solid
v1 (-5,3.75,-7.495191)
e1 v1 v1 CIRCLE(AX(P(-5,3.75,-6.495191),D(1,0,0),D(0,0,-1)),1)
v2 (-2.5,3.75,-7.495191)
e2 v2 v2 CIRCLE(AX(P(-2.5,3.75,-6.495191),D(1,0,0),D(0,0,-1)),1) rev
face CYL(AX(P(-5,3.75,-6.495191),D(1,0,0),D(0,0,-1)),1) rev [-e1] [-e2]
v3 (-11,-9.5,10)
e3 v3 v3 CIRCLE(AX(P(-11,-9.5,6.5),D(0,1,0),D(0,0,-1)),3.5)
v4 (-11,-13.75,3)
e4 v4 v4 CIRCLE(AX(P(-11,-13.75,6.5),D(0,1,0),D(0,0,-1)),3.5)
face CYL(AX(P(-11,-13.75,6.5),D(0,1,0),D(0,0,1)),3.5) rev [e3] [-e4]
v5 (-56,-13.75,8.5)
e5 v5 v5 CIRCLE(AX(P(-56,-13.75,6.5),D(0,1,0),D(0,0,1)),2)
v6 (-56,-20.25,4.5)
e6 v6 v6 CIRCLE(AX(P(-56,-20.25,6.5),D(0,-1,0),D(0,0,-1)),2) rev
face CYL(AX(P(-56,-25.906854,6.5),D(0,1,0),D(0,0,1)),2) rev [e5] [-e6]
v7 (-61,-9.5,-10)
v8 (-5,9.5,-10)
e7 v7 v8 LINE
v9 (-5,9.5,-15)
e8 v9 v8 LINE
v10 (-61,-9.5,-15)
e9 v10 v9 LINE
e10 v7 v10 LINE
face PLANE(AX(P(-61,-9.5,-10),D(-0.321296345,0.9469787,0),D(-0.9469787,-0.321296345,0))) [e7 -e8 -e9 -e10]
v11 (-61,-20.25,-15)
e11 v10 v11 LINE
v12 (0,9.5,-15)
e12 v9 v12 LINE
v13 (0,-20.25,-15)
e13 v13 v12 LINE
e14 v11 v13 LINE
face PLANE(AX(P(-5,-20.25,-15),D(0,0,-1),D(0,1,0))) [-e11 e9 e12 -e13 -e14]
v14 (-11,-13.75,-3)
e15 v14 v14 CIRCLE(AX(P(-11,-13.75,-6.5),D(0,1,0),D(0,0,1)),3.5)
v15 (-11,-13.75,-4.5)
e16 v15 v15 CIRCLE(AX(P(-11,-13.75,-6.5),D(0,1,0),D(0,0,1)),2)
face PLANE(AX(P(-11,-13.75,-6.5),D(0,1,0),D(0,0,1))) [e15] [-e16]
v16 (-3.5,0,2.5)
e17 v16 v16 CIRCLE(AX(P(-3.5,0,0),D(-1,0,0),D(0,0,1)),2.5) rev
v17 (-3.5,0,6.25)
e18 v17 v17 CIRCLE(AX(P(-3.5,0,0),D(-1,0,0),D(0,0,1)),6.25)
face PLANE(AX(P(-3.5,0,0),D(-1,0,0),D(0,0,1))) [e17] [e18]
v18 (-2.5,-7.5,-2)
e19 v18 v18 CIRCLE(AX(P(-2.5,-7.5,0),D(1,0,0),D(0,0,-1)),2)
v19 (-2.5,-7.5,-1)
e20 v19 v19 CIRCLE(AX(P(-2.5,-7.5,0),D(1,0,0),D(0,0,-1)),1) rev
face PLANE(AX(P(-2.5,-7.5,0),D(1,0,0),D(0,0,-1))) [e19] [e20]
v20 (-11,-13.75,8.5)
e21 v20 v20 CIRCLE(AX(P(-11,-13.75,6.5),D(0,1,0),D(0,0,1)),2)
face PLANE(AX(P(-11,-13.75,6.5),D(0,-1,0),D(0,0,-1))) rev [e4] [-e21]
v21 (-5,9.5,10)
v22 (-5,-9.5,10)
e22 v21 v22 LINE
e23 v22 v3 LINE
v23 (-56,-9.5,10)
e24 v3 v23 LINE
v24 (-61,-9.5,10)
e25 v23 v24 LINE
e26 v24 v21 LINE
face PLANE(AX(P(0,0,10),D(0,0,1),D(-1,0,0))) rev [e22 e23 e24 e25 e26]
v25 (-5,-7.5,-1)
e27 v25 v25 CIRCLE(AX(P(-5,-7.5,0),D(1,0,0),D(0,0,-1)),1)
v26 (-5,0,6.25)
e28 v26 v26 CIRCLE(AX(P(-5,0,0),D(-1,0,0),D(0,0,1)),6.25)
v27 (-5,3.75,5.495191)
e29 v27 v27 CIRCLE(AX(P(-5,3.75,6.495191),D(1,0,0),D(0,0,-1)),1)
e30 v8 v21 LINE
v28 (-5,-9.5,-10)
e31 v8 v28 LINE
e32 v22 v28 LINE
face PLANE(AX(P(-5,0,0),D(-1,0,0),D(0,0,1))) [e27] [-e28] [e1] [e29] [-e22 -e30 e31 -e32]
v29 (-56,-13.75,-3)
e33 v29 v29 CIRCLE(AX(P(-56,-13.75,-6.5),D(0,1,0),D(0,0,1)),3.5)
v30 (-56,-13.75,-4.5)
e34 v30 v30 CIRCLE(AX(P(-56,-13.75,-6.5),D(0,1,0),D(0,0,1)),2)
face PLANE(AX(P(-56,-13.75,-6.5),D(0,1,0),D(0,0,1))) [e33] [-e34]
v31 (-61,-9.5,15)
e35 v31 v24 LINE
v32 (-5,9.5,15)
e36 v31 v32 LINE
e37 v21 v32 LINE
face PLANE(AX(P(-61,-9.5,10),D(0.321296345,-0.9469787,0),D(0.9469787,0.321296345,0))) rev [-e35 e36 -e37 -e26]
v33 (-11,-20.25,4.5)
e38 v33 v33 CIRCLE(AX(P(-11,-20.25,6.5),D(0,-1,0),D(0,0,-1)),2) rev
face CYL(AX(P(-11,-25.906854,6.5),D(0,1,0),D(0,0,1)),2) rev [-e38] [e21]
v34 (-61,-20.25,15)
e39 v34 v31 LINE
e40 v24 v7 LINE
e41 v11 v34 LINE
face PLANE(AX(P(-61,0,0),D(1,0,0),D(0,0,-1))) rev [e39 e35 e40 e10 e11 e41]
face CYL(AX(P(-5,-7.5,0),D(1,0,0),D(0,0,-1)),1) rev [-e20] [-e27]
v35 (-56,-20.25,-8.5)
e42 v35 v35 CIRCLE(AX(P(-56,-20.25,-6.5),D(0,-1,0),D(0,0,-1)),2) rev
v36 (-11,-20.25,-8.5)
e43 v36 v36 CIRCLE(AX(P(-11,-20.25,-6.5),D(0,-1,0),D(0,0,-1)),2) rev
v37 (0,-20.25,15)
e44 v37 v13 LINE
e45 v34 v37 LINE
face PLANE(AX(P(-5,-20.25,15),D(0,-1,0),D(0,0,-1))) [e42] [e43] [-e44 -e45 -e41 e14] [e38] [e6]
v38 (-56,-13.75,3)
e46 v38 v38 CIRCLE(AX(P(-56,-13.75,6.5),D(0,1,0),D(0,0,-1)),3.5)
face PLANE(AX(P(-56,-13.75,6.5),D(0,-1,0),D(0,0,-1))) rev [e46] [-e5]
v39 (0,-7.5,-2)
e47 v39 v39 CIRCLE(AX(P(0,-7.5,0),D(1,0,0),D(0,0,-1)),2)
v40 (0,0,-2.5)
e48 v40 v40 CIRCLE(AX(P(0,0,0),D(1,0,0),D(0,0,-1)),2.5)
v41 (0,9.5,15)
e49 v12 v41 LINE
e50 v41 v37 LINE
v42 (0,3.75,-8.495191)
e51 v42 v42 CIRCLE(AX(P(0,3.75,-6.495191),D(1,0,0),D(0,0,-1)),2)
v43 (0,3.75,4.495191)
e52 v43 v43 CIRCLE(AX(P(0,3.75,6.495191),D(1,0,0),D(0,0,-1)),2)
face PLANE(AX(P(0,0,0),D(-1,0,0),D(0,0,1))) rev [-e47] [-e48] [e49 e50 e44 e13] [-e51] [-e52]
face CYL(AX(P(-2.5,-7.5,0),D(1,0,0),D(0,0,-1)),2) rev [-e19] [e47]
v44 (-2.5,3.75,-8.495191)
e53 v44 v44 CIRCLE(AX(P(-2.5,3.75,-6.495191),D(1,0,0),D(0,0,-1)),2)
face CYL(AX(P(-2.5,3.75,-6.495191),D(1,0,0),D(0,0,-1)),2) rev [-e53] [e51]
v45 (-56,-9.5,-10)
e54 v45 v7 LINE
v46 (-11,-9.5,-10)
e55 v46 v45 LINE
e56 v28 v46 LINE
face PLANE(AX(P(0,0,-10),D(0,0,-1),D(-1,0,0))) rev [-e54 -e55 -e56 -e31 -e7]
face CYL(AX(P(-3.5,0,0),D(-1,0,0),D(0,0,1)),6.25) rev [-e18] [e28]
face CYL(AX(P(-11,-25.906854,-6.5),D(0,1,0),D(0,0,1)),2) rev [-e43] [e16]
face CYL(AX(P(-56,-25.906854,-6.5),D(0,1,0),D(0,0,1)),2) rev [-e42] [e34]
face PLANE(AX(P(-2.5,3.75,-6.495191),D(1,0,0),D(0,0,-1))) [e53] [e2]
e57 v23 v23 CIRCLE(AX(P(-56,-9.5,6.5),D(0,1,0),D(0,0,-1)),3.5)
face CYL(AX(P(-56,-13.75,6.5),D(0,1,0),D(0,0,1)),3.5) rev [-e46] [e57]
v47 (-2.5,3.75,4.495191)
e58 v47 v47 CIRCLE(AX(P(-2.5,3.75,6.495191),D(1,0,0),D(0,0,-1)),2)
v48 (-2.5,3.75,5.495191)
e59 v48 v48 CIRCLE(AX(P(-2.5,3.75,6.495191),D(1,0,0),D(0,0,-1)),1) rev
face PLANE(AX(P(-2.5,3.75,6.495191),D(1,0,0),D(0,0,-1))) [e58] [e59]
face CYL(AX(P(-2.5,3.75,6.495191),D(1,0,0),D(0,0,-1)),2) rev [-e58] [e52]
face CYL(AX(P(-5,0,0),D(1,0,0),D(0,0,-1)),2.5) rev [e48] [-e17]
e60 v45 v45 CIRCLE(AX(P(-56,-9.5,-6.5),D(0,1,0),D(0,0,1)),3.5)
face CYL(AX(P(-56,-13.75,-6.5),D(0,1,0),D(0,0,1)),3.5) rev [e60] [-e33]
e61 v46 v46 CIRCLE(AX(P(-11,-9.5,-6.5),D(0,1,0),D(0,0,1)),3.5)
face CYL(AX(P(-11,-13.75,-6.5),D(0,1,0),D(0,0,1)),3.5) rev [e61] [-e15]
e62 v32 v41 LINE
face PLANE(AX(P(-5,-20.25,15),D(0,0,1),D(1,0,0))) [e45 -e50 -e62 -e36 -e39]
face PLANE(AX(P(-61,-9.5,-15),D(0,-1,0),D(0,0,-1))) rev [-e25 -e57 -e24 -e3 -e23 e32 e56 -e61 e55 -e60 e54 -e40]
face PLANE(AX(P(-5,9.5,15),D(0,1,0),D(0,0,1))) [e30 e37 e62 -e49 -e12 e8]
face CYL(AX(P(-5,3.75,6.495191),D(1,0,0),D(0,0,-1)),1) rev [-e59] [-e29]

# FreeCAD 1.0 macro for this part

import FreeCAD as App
import Part
import Sketcher
from FreeCAD import Vector


def add_polygon(sketch, points):
    """Adds a closed chain of lines whose ends are joined by coincident constraints."""
    first, n = sketch.GeometryCount, len(points)
    for a, b in zip(points, points[1:] + points[:1]):
        sketch.addGeometry(Part.LineSegment(App.Vector(*a, 0), App.Vector(*b, 0)), False)
    for i in range(n):
        sketch.addConstraint(Sketcher.Constraint("Coincident", first + i, 2, first + (i + 1) % n, 1))

doc = App.newDocument("Part")
params = doc.addObject("Spreadsheet::Sheet", "Params")
for row, (alias, value) in enumerate([
    ("sketch1_diameter", "2 mm"),
    ("sketch1_diameter2", "5 mm"),
    ("sketch1_height", "30 mm"),
    ("sketch1_width", "29.75 mm"),
    ("pad1_length", "5 mm"),
    ("sketch2_diameter", "4 mm"),
    ("pocket1_length", "2.5 mm"),
    ("sketch3_height", "30 mm"),
    ("sketch3_width", "10.75 mm"),
    ("pad2_length", "56 mm"),
    ("sketch4_width", "56 mm"),
    ("sketch4_height", "19 mm"),
    ("pad3_length", "5 mm"),
    ("sketch5_diameter", "12.5 mm"),
    ("pocket2_length", "1.5 mm"),
    ("sketch6_diameter", "7 mm"),
    ("pocket3_length", "4.25 mm"),
    ("sketch7_diameter", "4 mm"),
    ("pocket4_length", "6.5 mm"),
], start=1):
    params.set(f"A{row}", alias)
    params.set(f"B{row}", "=" + value)
    params.setAlias(f"B{row}", alias)

body = doc.addObject("PartDesign::Body", "Body")

# Sketch on YZ plane
sketch1 = doc.addObject("Sketcher::SketchObject", "Sketch")
body.addObject(sketch1)
sketch1.AttachmentSupport = (doc.YZ_Plane, [""])
sketch1.MapMode = "FlatFace"
add_polygon(sketch1, [(9.5, 15), (-20.2, 15), (-20.2, -15), (9.5, -15)])  # lines 0-3
sketch1.addGeometry(Part.Circle(Vector(-7.5, 0, 0), Vector(0, 0, 1), 1), False)  # 4
sketch1.addGeometry(Part.Circle(Vector(3.8, 6.5, 0), Vector(0, 0, 1), 1), False)  # 5
sketch1.addGeometry(Part.Circle(Vector(0, 0, 0), Vector(0, 0, 1), 2.5), False)  # 6
sketch1.addGeometry(Part.Circle(Vector(3.8, -6.5, 0), Vector(0, 0, 1), 1), False)  # 7
sketch1.addConstraint([
    Sketcher.Constraint("Horizontal", 0),
    Sketcher.Constraint("Vertical", 1),
    Sketcher.Constraint("Horizontal", 2),
    Sketcher.Constraint("Vertical", 3),
    Sketcher.Constraint("Coincident", 6, 3, -1, 1),
    Sketcher.Constraint("Equal", 4, 5),
    Sketcher.Constraint("Equal", 5, 7),
    Sketcher.Constraint("Symmetric", 5, 3, 7, 3, -1),
    Sketcher.Constraint("PointOnObject", 4, 3, -1),
    Sketcher.Constraint("Diameter", 4, 2.0),
    Sketcher.Constraint("Diameter", 6, 5.0),
    Sketcher.Constraint("DistanceY", 1, 2, 1, 1, 30.0),
    Sketcher.Constraint("DistanceY", -1, 1, 0, 2, 15.0),
    Sketcher.Constraint("DistanceX", 0, 2, 5, 3, 24.0),
    Sketcher.Constraint("DistanceX", 4, 3, 2, 2, 17.0),
    Sketcher.Constraint("DistanceX", 0, 2, 0, 1, 29.75),
    Sketcher.Constraint("DistanceX", 4, 3, -1, 1, 7.5),
    Sketcher.Constraint("DistanceY", -1, 1, 5, 3, 6.495191),
])
sketch1.setExpression("Constraints[13]", "Params.sketch1_diameter")
sketch1.setExpression("Constraints[14]", "Params.sketch1_diameter2")
sketch1.setExpression("Constraints[15]", "Params.sketch1_height")
sketch1.setExpression("Constraints[19]", "Params.sketch1_width")
pad1 = doc.addObject("PartDesign::Pad", "Pad")
body.addObject(pad1)
pad1.Profile = sketch1
pad1.setExpression("Length", "Params.pad1_length")
pad1.Reversed = True

# Sketch on YZ plane
sketch2 = doc.addObject("Sketcher::SketchObject", "Sketch001")
body.addObject(sketch2)
sketch2.AttachmentSupport = (doc.YZ_Plane, [""])
sketch2.MapMode = "FlatFace"
sketch2.addGeometry([
    Part.Circle(Vector(3.8, 6.5, 0), Vector(0, 0, 1), 2),
    Part.Circle(Vector(3.8, -6.5, 0), Vector(0, 0, 1), 2),
    Part.Circle(Vector(-7.5, 0, 0), Vector(0, 0, 1), 2),
], False)
sketch2.addConstraint([
    Sketcher.Constraint("Equal", 0, 1),
    Sketcher.Constraint("Equal", 1, 2),
    Sketcher.Constraint("Symmetric", 0, 3, 1, 3, -1),
    Sketcher.Constraint("PointOnObject", 2, 3, -1),
    Sketcher.Constraint("Diameter", 0, 4.0),
    Sketcher.Constraint("DistanceX", 2, 3, -1, 1, 7.5),
    Sketcher.Constraint("DistanceX", -1, 1, 0, 3, 3.75),
    Sketcher.Constraint("DistanceY", -1, 1, 0, 3, 6.495191),
])
sketch2.setExpression("Constraints[4]", "Params.sketch2_diameter")
pocket1 = doc.addObject("PartDesign::Pocket", "Pocket")
body.addObject(pocket1)
pocket1.Profile = sketch2
pocket1.setExpression("Length", "Params.pocket1_length")

# Sketch on YZ plane
sketch3 = doc.addObject("Sketcher::SketchObject", "Sketch002")
body.addObject(sketch3)
sketch3.AttachmentSupport = (doc.YZ_Plane, [""])
sketch3.MapMode = "FlatFace"
sketch3.AttachmentOffset = App.Placement(Vector(0, 0, -5), App.Rotation())
add_polygon(sketch3, [(-10, -15), (-20, -15), (-20, 15), (-10, 15)])  # lines 0-3
sketch3.addConstraint([
    Sketcher.Constraint("Horizontal", 0),
    Sketcher.Constraint("Vertical", 1),
    Sketcher.Constraint("Horizontal", 2),
    Sketcher.Constraint("Vertical", 3),
    Sketcher.Constraint("DistanceY", 1, 1, 1, 2, 30.0),
    Sketcher.Constraint("DistanceY", 0, 2, -1, 1, 15.0),
    Sketcher.Constraint("DistanceX", 0, 2, 0, 1, 10.75),
    Sketcher.Constraint("DistanceX", 2, 2, -1, 1, 9.5),
])
sketch3.setExpression("Constraints[8]", "Params.sketch3_height")
sketch3.setExpression("Constraints[10]", "Params.sketch3_width")
pad2 = doc.addObject("PartDesign::Pad", "Pad001")
body.addObject(pad2)
pad2.Profile = sketch3
pad2.setExpression("Length", "Params.pad2_length")
pad2.Reversed = True

# Sketch on XY plane
sketch4 = doc.addObject("Sketcher::SketchObject", "Sketch003")
body.addObject(sketch4)
sketch4.AttachmentSupport = (doc.XY_Plane, [""])
sketch4.MapMode = "FlatFace"
sketch4.AttachmentOffset = App.Placement(Vector(0, 0, -15), App.Rotation())
add_polygon(sketch4, [(-5, -10), (-61, -10), (-5, 10)])  # lines 0-2
sketch4.addConstraint([
    Sketcher.Constraint("Horizontal", 0),
    Sketcher.Constraint("Vertical", 2),
    Sketcher.Constraint("DistanceX", 0, 2, 0, 1, 56.0),
    Sketcher.Constraint("DistanceY", 2, 2, 2, 1, 19.0),
    Sketcher.Constraint("DistanceX", 0, 2, -1, 1, 61.0),
    Sketcher.Constraint("DistanceY", 0, 2, -1, 1, 9.5),
])
sketch4.setExpression("Constraints[5]", "Params.sketch4_width")
sketch4.setExpression("Constraints[6]", "Params.sketch4_height")
pad3 = doc.addObject("PartDesign::Pad", "Pad002")
body.addObject(pad3)
pad3.Profile = sketch4
pad3.setExpression("Length", "Params.pad3_length")
doc.recompute()

mirrored = doc.addObject("PartDesign::Mirrored", "Mirrored")
body.addObject(mirrored)
mirrored.Originals = [pad3]
mirrored.MirrorPlane = (doc.XY_Plane, [""])
body.Tip = mirrored

# Sketch on YZ plane
sketch5 = doc.addObject("Sketcher::SketchObject", "Sketch004")
body.addObject(sketch5)
sketch5.AttachmentSupport = (doc.YZ_Plane, [""])
sketch5.MapMode = "FlatFace"
sketch5.AttachmentOffset = App.Placement(Vector(0, 0, -5), App.Rotation())
sketch5.addGeometry(Part.Circle(Vector(0, 0, 0), Vector(0, 0, 1), 6), False)
sketch5.addConstraint([
    Sketcher.Constraint("Coincident", 0, 3, -1, 1),
    Sketcher.Constraint("Diameter", 0, 12.5),
])
sketch5.setExpression("Constraints[1]", "Params.sketch5_diameter")
pocket2 = doc.addObject("PartDesign::Pocket", "Pocket001")
body.addObject(pocket2)
pocket2.Profile = sketch5
pocket2.setExpression("Length", "Params.pocket2_length")
pocket2.Reversed = True

# Sketch on XZ plane
sketch6 = doc.addObject("Sketcher::SketchObject", "Sketch005")
body.addObject(sketch6)
sketch6.AttachmentSupport = (doc.XZ_Plane, [""])
sketch6.MapMode = "FlatFace"
sketch6.AttachmentOffset = App.Placement(Vector(0, 0, 9.5), App.Rotation())
sketch6.addGeometry([
    Part.Circle(Vector(-11, -6.5, 0), Vector(0, 0, 1), 3.5),
    Part.Circle(Vector(-56, -6.5, 0), Vector(0, 0, 1), 3.5),
    Part.Circle(Vector(-56, 6.5, 0), Vector(0, 0, 1), 3.5),
    Part.Circle(Vector(-11, 6.5, 0), Vector(0, 0, 1), 3.5),
], False)
sketch6.addConstraint([
    Sketcher.Constraint("Equal", 0, 1),
    Sketcher.Constraint("Equal", 1, 2),
    Sketcher.Constraint("Equal", 2, 3),
    Sketcher.Constraint("Symmetric", 1, 3, 2, 3, -1),
    Sketcher.Constraint("Symmetric", 0, 3, 3, 3, -1),
    Sketcher.Constraint("Horizontal", 0, 3, 1, 3),
    Sketcher.Constraint("Diameter", 0, 7.0),
    Sketcher.Constraint("DistanceX", 0, 3, -1, 1, 11.0),
    Sketcher.Constraint("DistanceX", 1, 3, -1, 1, 56.0),
    Sketcher.Constraint("DistanceY", 1, 3, 2, 3, 13.0),
])
sketch6.setExpression("Constraints[6]", "Params.sketch6_diameter")
pocket3 = doc.addObject("PartDesign::Pocket", "Pocket002")
body.addObject(pocket3)
pocket3.Profile = sketch6
pocket3.setExpression("Length", "Params.pocket3_length")
pocket3.Reversed = True

# Sketch on XZ plane
sketch7 = doc.addObject("Sketcher::SketchObject", "Sketch006")
body.addObject(sketch7)
sketch7.AttachmentSupport = (doc.XZ_Plane, [""])
sketch7.MapMode = "FlatFace"
sketch7.AttachmentOffset = App.Placement(Vector(0, 0, 13.75), App.Rotation())
sketch7.addGeometry([
    Part.Circle(Vector(-56, -6.5, 0), Vector(0, 0, 1), 2),
    Part.Circle(Vector(-11, -6.5, 0), Vector(0, 0, 1), 2),
    Part.Circle(Vector(-11, 6.5, 0), Vector(0, 0, 1), 2),
    Part.Circle(Vector(-56, 6.5, 0), Vector(0, 0, 1), 2),
], False)
sketch7.addConstraint([
    Sketcher.Constraint("Equal", 0, 1),
    Sketcher.Constraint("Equal", 1, 2),
    Sketcher.Constraint("Equal", 2, 3),
    Sketcher.Constraint("Symmetric", 1, 3, 2, 3, -1),
    Sketcher.Constraint("Symmetric", 0, 3, 3, 3, -1),
    Sketcher.Constraint("Horizontal", 0, 3, 1, 3),
    Sketcher.Constraint("Diameter", 0, 4.0),
    Sketcher.Constraint("DistanceX", 0, 3, -1, 1, 56.0),
    Sketcher.Constraint("DistanceX", 1, 3, -1, 1, 11.0),
    Sketcher.Constraint("DistanceY", 1, 3, 2, 3, 13.0),
])
sketch7.setExpression("Constraints[6]", "Params.sketch7_diameter")
pocket4 = doc.addObject("PartDesign::Pocket", "Pocket003")
body.addObject(pocket4)
pocket4.Profile = sketch7
pocket4.setExpression("Length", "Params.pocket4_length")
pocket4.Reversed = True

doc.recompute()
